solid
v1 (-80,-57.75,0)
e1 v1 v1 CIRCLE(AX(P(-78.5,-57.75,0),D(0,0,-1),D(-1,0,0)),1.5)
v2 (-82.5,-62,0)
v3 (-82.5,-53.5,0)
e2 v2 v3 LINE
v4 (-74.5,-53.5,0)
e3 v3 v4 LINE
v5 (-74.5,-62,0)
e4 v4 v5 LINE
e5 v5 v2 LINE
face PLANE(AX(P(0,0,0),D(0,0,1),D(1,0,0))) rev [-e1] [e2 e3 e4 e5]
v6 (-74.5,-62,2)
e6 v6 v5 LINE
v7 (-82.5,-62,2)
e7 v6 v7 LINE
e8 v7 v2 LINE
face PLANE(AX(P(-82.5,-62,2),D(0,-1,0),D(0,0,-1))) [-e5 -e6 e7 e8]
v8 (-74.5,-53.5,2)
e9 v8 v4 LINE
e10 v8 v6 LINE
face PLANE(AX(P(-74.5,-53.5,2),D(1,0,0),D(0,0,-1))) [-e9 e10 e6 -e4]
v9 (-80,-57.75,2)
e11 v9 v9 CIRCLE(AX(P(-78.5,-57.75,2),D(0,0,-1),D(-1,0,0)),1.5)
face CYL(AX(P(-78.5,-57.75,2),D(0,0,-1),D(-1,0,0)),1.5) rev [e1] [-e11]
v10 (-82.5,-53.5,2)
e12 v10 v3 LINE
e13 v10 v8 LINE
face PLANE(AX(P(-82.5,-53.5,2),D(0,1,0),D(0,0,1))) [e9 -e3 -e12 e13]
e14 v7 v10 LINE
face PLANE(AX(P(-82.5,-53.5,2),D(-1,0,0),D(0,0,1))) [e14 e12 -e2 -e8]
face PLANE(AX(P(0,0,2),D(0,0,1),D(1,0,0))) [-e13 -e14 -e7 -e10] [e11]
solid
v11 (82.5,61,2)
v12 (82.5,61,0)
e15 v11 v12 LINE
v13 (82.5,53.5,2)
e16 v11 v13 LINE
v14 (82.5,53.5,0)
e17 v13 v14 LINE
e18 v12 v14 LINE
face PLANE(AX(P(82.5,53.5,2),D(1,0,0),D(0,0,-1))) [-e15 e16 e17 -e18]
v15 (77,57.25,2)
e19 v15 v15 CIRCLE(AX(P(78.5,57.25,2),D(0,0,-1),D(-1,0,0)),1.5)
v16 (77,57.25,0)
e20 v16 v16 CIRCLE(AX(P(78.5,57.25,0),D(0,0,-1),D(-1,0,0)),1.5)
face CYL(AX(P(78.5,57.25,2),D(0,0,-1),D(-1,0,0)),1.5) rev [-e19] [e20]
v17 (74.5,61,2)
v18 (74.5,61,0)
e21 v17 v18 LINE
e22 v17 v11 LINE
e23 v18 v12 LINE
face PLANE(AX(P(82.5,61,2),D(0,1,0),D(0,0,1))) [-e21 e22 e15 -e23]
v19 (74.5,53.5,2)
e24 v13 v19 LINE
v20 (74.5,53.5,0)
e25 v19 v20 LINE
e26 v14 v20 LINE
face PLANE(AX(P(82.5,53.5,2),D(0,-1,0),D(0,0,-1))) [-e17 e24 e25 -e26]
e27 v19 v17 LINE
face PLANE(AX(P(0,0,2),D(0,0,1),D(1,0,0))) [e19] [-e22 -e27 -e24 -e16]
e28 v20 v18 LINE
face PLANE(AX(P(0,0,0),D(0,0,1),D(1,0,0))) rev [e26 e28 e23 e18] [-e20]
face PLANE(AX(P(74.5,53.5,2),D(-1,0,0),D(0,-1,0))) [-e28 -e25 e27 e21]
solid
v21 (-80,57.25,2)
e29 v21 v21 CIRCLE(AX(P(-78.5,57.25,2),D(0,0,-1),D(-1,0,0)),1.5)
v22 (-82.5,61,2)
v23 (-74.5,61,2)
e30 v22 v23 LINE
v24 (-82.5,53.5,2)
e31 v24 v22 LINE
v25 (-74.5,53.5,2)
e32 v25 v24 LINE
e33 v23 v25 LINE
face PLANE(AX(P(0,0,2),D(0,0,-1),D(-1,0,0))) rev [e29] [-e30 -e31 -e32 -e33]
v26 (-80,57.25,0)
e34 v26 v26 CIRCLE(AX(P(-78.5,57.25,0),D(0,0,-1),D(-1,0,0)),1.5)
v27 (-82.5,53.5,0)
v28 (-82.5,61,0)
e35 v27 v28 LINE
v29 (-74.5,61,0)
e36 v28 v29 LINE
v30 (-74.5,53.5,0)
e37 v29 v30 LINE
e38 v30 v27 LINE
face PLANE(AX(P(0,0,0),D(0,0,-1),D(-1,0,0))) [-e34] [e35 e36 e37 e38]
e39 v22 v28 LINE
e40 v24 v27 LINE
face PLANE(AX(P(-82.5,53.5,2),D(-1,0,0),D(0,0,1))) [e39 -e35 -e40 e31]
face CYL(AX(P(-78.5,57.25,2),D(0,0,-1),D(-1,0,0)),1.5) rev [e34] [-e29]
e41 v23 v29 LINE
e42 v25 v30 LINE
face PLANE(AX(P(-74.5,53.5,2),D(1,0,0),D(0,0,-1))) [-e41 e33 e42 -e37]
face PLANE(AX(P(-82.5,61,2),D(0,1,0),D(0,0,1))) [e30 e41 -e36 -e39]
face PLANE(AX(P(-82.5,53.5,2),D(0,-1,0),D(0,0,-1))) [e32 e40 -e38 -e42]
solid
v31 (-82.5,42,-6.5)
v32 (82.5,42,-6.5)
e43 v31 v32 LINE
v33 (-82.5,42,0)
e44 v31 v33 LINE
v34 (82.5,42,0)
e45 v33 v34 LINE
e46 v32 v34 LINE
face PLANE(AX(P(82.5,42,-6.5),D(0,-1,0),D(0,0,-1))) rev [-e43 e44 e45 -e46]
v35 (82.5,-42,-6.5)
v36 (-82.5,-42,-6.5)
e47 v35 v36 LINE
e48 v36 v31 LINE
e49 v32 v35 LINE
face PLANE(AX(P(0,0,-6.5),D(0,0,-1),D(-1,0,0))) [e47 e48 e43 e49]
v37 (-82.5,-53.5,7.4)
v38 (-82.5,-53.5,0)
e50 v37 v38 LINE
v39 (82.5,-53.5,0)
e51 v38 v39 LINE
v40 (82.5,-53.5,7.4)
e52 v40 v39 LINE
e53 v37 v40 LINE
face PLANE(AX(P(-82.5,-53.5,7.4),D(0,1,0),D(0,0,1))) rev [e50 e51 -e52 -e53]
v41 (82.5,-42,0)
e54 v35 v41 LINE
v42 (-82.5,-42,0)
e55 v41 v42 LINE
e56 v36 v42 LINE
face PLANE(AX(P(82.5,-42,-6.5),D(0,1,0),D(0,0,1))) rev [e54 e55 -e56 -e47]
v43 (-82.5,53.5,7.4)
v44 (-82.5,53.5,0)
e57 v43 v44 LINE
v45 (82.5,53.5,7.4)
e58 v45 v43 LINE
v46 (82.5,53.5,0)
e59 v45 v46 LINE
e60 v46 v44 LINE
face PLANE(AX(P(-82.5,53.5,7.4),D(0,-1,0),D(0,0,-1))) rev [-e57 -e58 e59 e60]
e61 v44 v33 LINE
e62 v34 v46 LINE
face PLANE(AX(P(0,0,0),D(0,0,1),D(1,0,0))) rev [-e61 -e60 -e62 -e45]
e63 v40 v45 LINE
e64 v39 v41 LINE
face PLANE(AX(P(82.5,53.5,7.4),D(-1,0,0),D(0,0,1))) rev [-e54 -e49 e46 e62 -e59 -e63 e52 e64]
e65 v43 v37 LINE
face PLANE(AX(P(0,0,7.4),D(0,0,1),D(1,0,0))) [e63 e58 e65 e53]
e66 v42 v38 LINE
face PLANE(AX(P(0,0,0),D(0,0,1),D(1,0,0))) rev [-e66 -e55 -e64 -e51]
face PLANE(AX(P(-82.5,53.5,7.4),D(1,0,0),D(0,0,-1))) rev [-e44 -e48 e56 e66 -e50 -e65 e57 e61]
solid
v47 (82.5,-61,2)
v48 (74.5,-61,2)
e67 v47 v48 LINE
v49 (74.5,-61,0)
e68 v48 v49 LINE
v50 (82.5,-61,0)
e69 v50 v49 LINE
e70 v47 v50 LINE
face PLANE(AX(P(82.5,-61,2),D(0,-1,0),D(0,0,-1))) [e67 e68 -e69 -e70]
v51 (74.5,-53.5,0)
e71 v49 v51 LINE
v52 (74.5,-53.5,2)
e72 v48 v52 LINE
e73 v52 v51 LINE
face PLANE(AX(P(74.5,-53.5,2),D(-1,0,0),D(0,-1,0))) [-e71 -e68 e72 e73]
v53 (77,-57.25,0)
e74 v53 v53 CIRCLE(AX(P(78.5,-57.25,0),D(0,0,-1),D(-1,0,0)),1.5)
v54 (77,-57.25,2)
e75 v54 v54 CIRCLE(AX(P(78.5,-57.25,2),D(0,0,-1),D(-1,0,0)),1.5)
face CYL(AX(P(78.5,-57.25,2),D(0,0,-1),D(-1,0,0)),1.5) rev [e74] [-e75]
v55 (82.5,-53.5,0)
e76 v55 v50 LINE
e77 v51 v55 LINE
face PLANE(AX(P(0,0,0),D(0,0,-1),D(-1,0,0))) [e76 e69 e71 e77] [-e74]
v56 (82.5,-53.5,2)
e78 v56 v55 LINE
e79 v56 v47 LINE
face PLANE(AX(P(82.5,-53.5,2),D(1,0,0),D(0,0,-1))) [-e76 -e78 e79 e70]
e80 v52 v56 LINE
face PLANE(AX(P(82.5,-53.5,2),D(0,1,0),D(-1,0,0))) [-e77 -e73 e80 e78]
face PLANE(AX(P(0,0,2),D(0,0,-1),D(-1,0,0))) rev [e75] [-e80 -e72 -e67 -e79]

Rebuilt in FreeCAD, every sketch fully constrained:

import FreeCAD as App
import Part
import Sketcher

doc = App.newDocument("Part")
body = doc.addObject("PartDesign::Body", "Body")

sketch1 = doc.addObject("Sketcher::SketchObject", "Sketch")
body.addObject(sketch1)
sketch1.AttachmentSupport = (doc.XY_Plane, [""])
sketch1.MapMode = "FlatFace"
sketch1.addGeometry(Part.LineSegment(App.Vector(-82, 54, 0), App.Vector(-82, -54, 0)), False)
sketch1.addGeometry(Part.LineSegment(App.Vector(-82, -54, 0), App.Vector(82, -54, 0)), False)
sketch1.addGeometry(Part.LineSegment(App.Vector(82, -54, 0), App.Vector(82, 54, 0)), False)
sketch1.addGeometry(Part.LineSegment(App.Vector(82, 54, 0), App.Vector(-82, 54, 0)), False)
sketch1.addConstraint(Sketcher.Constraint("Coincident", 0, 2, 1, 1))
sketch1.addConstraint(Sketcher.Constraint("Coincident", 1, 2, 2, 1))
sketch1.addConstraint(Sketcher.Constraint("Coincident", 2, 2, 3, 1))
sketch1.addConstraint(Sketcher.Constraint("Coincident", 3, 2, 0, 1))
sketch1.addConstraint(Sketcher.Constraint("Vertical", 0))
sketch1.addConstraint(Sketcher.Constraint("Horizontal", 1))
sketch1.addConstraint(Sketcher.Constraint("Vertical", 2))
sketch1.addConstraint(Sketcher.Constraint("Horizontal", 3))
sketch1.addConstraint(Sketcher.Constraint("Symmetric", 0, 2, 2, 2, -1, 1))
sketch1.addConstraint(Sketcher.Constraint("DistanceX", 1, 1, 1, 2, 165.0))
sketch1.addConstraint(Sketcher.Constraint("DistanceY", 0, 2, 0, 1, 107.0))
pad1 = doc.addObject("PartDesign::Pad", "Pad")
body.addObject(pad1)
pad1.Profile = sketch1
pad1.Length = 7.4

sketch2 = doc.addObject("Sketcher::SketchObject", "Sketch001")
body.addObject(sketch2)
sketch2.AttachmentSupport = (doc.XY_Plane, [""])
sketch2.MapMode = "FlatFace"
sketch2.addGeometry(Part.LineSegment(App.Vector(82, 42, 0), App.Vector(82, -42, 0)), False)
sketch2.addGeometry(Part.LineSegment(App.Vector(82, -42, 0), App.Vector(-82, -42, 0)), False)
sketch2.addGeometry(Part.LineSegment(App.Vector(-82, -42, 0), App.Vector(-82, 42, 0)), False)
sketch2.addGeometry(Part.LineSegment(App.Vector(-82, 42, 0), App.Vector(82, 42, 0)), False)
sketch2.addConstraint(Sketcher.Constraint("Coincident", 0, 2, 1, 1))
sketch2.addConstraint(Sketcher.Constraint("Coincident", 1, 2, 2, 1))
sketch2.addConstraint(Sketcher.Constraint("Coincident", 2, 2, 3, 1))
sketch2.addConstraint(Sketcher.Constraint("Coincident", 3, 2, 0, 1))
sketch2.addConstraint(Sketcher.Constraint("Vertical", 0))
sketch2.addConstraint(Sketcher.Constraint("Horizontal", 1))
sketch2.addConstraint(Sketcher.Constraint("Vertical", 2))
sketch2.addConstraint(Sketcher.Constraint("Horizontal", 3))
sketch2.addConstraint(Sketcher.Constraint("Symmetric", 0, 2, 2, 2, -1, 1))
sketch2.addConstraint(Sketcher.Constraint("DistanceX", 1, 2, 1, 1, 165.0))
sketch2.addConstraint(Sketcher.Constraint("DistanceY", 0, 2, 0, 1, 84.0))
pad2 = doc.addObject("PartDesign::Pad", "Pad001")
body.addObject(pad2)
pad2.Profile = sketch2
pad2.Length = 6.5
pad2.Reversed = True
body2 = doc.addObject("PartDesign::Body", "Body001")

sketch3 = doc.addObject("Sketcher::SketchObject", "Sketch002")
body2.addObject(sketch3)
sketch3.AttachmentSupport = (doc.getObject("XY_Plane001"), [""])
sketch3.MapMode = "FlatFace"
sketch3.addGeometry(Part.LineSegment(App.Vector(82.5, 61, 0), App.Vector(82.5, 53.5, 0)), False)
sketch3.addGeometry(Part.LineSegment(App.Vector(82.5, 53.5, 0), App.Vector(74.5, 53.5, 0)), False)
sketch3.addGeometry(Part.LineSegment(App.Vector(74.5, 53.5, 0), App.Vector(74.5, 61, 0)), False)
sketch3.addGeometry(Part.LineSegment(App.Vector(74.5, 61, 0), App.Vector(82.5, 61, 0)), False)
sketch3.addGeometry(Part.Circle(App.Vector(78.5, 57.2, 0), App.Vector(0, 0, 1), 1.5), False)
sketch3.addConstraint(Sketcher.Constraint("Coincident", 0, 2, 1, 1))
sketch3.addConstraint(Sketcher.Constraint("Coincident", 1, 2, 2, 1))
sketch3.addConstraint(Sketcher.Constraint("Coincident", 2, 2, 3, 1))
sketch3.addConstraint(Sketcher.Constraint("Coincident", 3, 2, 0, 1))
sketch3.addConstraint(Sketcher.Constraint("Vertical", 0))
sketch3.addConstraint(Sketcher.Constraint("Horizontal", 1))
sketch3.addConstraint(Sketcher.Constraint("Vertical", 2))
sketch3.addConstraint(Sketcher.Constraint("Horizontal", 3))
sketch3.addConstraint(Sketcher.Constraint("Diameter", 4, 3.0))
sketch3.addConstraint(Sketcher.Constraint("DistanceX", 1, 2, 1, 1, 8.0))
sketch3.addConstraint(Sketcher.Constraint("DistanceY", 0, 2, 0, 1, 7.5))
sketch3.addConstraint(Sketcher.Constraint("DistanceY", -1, 1, 2, 2, 61.0))
sketch3.addConstraint(Sketcher.Constraint("DistanceX", 4, 3, 0, 2, 4.0))
sketch3.addConstraint(Sketcher.Constraint("DistanceX", -1, 1, 4, 3, 78.5))
sketch3.addConstraint(Sketcher.Constraint("DistanceY", -1, 1, 4, 3, 57.25))
pad3 = doc.addObject("PartDesign::Pad", "Pad002")
body2.addObject(pad3)
pad3.Profile = sketch3
pad3.Length = 2
body3 = doc.addObject("PartDesign::Body", "Body002")

sketch4 = doc.addObject("Sketcher::SketchObject", "Sketch003")
body3.addObject(sketch4)
sketch4.AttachmentSupport = (doc.getObject("XY_Plane002"), [""])
sketch4.MapMode = "FlatFace"
sketch4.addGeometry(Part.LineSegment(App.Vector(-74.5, 61, 0), App.Vector(-74.5, 53.5, 0)), False)
sketch4.addGeometry(Part.LineSegment(App.Vector(-74.5, 53.5, 0), App.Vector(-82.5, 53.5, 0)), False)
sketch4.addGeometry(Part.LineSegment(App.Vector(-82.5, 53.5, 0), App.Vector(-82.5, 61, 0)), False)
sketch4.addGeometry(Part.LineSegment(App.Vector(-82.5, 61, 0), App.Vector(-74.5, 61, 0)), False)
sketch4.addGeometry(Part.Circle(App.Vector(-78.5, 57.2, 0), App.Vector(0, 0, 1), 1.5), False)
sketch4.addConstraint(Sketcher.Constraint("Coincident", 0, 2, 1, 1))
sketch4.addConstraint(Sketcher.Constraint("Coincident", 1, 2, 2, 1))
sketch4.addConstraint(Sketcher.Constraint("Coincident", 2, 2, 3, 1))
sketch4.addConstraint(Sketcher.Constraint("Coincident", 3, 2, 0, 1))
sketch4.addConstraint(Sketcher.Constraint("Vertical", 0))
sketch4.addConstraint(Sketcher.Constraint("Horizontal", 1))
sketch4.addConstraint(Sketcher.Constraint("Vertical", 2))
sketch4.addConstraint(Sketcher.Constraint("Horizontal", 3))
sketch4.addConstraint(Sketcher.Constraint("Diameter", 4, 3.0))
sketch4.addConstraint(Sketcher.Constraint("DistanceX", 1, 2, 1, 1, 8.0))
sketch4.addConstraint(Sketcher.Constraint("DistanceY", 0, 2, 0, 1, 7.5))
sketch4.addConstraint(Sketcher.Constraint("DistanceY", -1, 1, 2, 2, 61.0))
sketch4.addConstraint(Sketcher.Constraint("DistanceX", 4, 3, 0, 2, 4.0))
sketch4.addConstraint(Sketcher.Constraint("DistanceX", 4, 3, -1, 1, 78.5))
sketch4.addConstraint(Sketcher.Constraint("DistanceY", -1, 1, 4, 3, 57.25))
pad4 = doc.addObject("PartDesign::Pad", "Pad003")
body3.addObject(pad4)
pad4.Profile = sketch4
pad4.Length = 2
body4 = doc.addObject("PartDesign::Body", "Body003")

sketch5 = doc.addObject("Sketcher::SketchObject", "Sketch004")
body4.addObject(sketch5)
sketch5.AttachmentSupport = (doc.getObject("XY_Plane003"), [""])
sketch5.MapMode = "FlatFace"
sketch5.addGeometry(Part.LineSegment(App.Vector(-74.5, -53.5, 0), App.Vector(-74.5, -62, 0)), False)
sketch5.addGeometry(Part.LineSegment(App.Vector(-74.5, -62, 0), App.Vector(-82.5, -62, 0)), False)
sketch5.addGeometry(Part.LineSegment(App.Vector(-82.5, -62, 0), App.Vector(-82.5, -53.5, 0)), False)
sketch5.addGeometry(Part.LineSegment(App.Vector(-82.5, -53.5, 0), App.Vector(-74.5, -53.5, 0)), False)
sketch5.addGeometry(Part.Circle(App.Vector(-78.5, -57.8, 0), App.Vector(0, 0, 1), 1.5), False)
sketch5.addConstraint(Sketcher.Constraint("Coincident", 0, 2, 1, 1))
sketch5.addConstraint(Sketcher.Constraint("Coincident", 1, 2, 2, 1))
sketch5.addConstraint(Sketcher.Constraint("Coincident", 2, 2, 3, 1))
sketch5.addConstraint(Sketcher.Constraint("Coincident", 3, 2, 0, 1))
sketch5.addConstraint(Sketcher.Constraint("Vertical", 0))
sketch5.addConstraint(Sketcher.Constraint("Horizontal", 1))
sketch5.addConstraint(Sketcher.Constraint("Vertical", 2))
sketch5.addConstraint(Sketcher.Constraint("Horizontal", 3))
sketch5.addConstraint(Sketcher.Constraint("Diameter", 4, 3.0))
sketch5.addConstraint(Sketcher.Constraint("DistanceX", 1, 2, 1, 1, 8.0))
sketch5.addConstraint(Sketcher.Constraint("DistanceY", 0, 2, 0, 1, 8.5))
sketch5.addConstraint(Sketcher.Constraint("DistanceY", 0, 2, -1, 1, 62.0))
sketch5.addConstraint(Sketcher.Constraint("DistanceX", 4, 3, 0, 2, 4.0))
sketch5.addConstraint(Sketcher.Constraint("DistanceX", 4, 3, -1, 1, 78.5))
sketch5.addConstraint(Sketcher.Constraint("DistanceY", 4, 3, -1, 1, 57.75))
pad5 = doc.addObject("PartDesign::Pad", "Pad004")
body4.addObject(pad5)
pad5.Profile = sketch5
pad5.Length = 2
body5 = doc.addObject("PartDesign::Body", "Body004")

sketch6 = doc.addObject("Sketcher::SketchObject", "Sketch005")
body5.addObject(sketch6)
sketch6.AttachmentSupport = (doc.getObject("XY_Plane004"), [""])
sketch6.MapMode = "FlatFace"
sketch6.addGeometry(Part.LineSegment(App.Vector(82.5, -53.5, 0), App.Vector(82.5, -61, 0)), False)
sketch6.addGeometry(Part.LineSegment(App.Vector(82.5, -61, 0), App.Vector(74.5, -61, 0)), False)
sketch6.addGeometry(Part.LineSegment(App.Vector(74.5, -61, 0), App.Vector(74.5, -53.5, 0)), False)
sketch6.addGeometry(Part.LineSegment(App.Vector(74.5, -53.5, 0), App.Vector(82.5, -53.5, 0)), False)
sketch6.addGeometry(Part.Circle(App.Vector(78.5, -57.2, 0), App.Vector(0, 0, 1), 1.5), False)
sketch6.addConstraint(Sketcher.Constraint("Coincident", 0, 2, 1, 1))
sketch6.addConstraint(Sketcher.Constraint("Coincident", 1, 2, 2, 1))
sketch6.addConstraint(Sketcher.Constraint("Coincident", 2, 2, 3, 1))
sketch6.addConstraint(Sketcher.Constraint("Coincident", 3, 2, 0, 1))
sketch6.addConstraint(Sketcher.Constraint("Vertical", 0))
sketch6.addConstraint(Sketcher.Constraint("Horizontal", 1))
sketch6.addConstraint(Sketcher.Constraint("Vertical", 2))
sketch6.addConstraint(Sketcher.Constraint("Horizontal", 3))
sketch6.addConstraint(Sketcher.Constraint("Diameter", 4, 3.0))
sketch6.addConstraint(Sketcher.Constraint("DistanceX", 1, 2, 1, 1, 8.0))
sketch6.addConstraint(Sketcher.Constraint("DistanceY", 0, 2, 0, 1, 7.5))
sketch6.addConstraint(Sketcher.Constraint("DistanceY", 0, 2, -1, 1, 61.0))
sketch6.addConstraint(Sketcher.Constraint("DistanceX", 4, 3, 0, 2, 4.0))
sketch6.addConstraint(Sketcher.Constraint("DistanceX", -1, 1, 4, 3, 78.5))
sketch6.addConstraint(Sketcher.Constraint("DistanceY", 4, 3, -1, 1, 57.25))
pad6 = doc.addObject("PartDesign::Pad", "Pad005")
body5.addObject(pad6)
pad6.Profile = sketch6
pad6.Length = 2

doc.recompute()
